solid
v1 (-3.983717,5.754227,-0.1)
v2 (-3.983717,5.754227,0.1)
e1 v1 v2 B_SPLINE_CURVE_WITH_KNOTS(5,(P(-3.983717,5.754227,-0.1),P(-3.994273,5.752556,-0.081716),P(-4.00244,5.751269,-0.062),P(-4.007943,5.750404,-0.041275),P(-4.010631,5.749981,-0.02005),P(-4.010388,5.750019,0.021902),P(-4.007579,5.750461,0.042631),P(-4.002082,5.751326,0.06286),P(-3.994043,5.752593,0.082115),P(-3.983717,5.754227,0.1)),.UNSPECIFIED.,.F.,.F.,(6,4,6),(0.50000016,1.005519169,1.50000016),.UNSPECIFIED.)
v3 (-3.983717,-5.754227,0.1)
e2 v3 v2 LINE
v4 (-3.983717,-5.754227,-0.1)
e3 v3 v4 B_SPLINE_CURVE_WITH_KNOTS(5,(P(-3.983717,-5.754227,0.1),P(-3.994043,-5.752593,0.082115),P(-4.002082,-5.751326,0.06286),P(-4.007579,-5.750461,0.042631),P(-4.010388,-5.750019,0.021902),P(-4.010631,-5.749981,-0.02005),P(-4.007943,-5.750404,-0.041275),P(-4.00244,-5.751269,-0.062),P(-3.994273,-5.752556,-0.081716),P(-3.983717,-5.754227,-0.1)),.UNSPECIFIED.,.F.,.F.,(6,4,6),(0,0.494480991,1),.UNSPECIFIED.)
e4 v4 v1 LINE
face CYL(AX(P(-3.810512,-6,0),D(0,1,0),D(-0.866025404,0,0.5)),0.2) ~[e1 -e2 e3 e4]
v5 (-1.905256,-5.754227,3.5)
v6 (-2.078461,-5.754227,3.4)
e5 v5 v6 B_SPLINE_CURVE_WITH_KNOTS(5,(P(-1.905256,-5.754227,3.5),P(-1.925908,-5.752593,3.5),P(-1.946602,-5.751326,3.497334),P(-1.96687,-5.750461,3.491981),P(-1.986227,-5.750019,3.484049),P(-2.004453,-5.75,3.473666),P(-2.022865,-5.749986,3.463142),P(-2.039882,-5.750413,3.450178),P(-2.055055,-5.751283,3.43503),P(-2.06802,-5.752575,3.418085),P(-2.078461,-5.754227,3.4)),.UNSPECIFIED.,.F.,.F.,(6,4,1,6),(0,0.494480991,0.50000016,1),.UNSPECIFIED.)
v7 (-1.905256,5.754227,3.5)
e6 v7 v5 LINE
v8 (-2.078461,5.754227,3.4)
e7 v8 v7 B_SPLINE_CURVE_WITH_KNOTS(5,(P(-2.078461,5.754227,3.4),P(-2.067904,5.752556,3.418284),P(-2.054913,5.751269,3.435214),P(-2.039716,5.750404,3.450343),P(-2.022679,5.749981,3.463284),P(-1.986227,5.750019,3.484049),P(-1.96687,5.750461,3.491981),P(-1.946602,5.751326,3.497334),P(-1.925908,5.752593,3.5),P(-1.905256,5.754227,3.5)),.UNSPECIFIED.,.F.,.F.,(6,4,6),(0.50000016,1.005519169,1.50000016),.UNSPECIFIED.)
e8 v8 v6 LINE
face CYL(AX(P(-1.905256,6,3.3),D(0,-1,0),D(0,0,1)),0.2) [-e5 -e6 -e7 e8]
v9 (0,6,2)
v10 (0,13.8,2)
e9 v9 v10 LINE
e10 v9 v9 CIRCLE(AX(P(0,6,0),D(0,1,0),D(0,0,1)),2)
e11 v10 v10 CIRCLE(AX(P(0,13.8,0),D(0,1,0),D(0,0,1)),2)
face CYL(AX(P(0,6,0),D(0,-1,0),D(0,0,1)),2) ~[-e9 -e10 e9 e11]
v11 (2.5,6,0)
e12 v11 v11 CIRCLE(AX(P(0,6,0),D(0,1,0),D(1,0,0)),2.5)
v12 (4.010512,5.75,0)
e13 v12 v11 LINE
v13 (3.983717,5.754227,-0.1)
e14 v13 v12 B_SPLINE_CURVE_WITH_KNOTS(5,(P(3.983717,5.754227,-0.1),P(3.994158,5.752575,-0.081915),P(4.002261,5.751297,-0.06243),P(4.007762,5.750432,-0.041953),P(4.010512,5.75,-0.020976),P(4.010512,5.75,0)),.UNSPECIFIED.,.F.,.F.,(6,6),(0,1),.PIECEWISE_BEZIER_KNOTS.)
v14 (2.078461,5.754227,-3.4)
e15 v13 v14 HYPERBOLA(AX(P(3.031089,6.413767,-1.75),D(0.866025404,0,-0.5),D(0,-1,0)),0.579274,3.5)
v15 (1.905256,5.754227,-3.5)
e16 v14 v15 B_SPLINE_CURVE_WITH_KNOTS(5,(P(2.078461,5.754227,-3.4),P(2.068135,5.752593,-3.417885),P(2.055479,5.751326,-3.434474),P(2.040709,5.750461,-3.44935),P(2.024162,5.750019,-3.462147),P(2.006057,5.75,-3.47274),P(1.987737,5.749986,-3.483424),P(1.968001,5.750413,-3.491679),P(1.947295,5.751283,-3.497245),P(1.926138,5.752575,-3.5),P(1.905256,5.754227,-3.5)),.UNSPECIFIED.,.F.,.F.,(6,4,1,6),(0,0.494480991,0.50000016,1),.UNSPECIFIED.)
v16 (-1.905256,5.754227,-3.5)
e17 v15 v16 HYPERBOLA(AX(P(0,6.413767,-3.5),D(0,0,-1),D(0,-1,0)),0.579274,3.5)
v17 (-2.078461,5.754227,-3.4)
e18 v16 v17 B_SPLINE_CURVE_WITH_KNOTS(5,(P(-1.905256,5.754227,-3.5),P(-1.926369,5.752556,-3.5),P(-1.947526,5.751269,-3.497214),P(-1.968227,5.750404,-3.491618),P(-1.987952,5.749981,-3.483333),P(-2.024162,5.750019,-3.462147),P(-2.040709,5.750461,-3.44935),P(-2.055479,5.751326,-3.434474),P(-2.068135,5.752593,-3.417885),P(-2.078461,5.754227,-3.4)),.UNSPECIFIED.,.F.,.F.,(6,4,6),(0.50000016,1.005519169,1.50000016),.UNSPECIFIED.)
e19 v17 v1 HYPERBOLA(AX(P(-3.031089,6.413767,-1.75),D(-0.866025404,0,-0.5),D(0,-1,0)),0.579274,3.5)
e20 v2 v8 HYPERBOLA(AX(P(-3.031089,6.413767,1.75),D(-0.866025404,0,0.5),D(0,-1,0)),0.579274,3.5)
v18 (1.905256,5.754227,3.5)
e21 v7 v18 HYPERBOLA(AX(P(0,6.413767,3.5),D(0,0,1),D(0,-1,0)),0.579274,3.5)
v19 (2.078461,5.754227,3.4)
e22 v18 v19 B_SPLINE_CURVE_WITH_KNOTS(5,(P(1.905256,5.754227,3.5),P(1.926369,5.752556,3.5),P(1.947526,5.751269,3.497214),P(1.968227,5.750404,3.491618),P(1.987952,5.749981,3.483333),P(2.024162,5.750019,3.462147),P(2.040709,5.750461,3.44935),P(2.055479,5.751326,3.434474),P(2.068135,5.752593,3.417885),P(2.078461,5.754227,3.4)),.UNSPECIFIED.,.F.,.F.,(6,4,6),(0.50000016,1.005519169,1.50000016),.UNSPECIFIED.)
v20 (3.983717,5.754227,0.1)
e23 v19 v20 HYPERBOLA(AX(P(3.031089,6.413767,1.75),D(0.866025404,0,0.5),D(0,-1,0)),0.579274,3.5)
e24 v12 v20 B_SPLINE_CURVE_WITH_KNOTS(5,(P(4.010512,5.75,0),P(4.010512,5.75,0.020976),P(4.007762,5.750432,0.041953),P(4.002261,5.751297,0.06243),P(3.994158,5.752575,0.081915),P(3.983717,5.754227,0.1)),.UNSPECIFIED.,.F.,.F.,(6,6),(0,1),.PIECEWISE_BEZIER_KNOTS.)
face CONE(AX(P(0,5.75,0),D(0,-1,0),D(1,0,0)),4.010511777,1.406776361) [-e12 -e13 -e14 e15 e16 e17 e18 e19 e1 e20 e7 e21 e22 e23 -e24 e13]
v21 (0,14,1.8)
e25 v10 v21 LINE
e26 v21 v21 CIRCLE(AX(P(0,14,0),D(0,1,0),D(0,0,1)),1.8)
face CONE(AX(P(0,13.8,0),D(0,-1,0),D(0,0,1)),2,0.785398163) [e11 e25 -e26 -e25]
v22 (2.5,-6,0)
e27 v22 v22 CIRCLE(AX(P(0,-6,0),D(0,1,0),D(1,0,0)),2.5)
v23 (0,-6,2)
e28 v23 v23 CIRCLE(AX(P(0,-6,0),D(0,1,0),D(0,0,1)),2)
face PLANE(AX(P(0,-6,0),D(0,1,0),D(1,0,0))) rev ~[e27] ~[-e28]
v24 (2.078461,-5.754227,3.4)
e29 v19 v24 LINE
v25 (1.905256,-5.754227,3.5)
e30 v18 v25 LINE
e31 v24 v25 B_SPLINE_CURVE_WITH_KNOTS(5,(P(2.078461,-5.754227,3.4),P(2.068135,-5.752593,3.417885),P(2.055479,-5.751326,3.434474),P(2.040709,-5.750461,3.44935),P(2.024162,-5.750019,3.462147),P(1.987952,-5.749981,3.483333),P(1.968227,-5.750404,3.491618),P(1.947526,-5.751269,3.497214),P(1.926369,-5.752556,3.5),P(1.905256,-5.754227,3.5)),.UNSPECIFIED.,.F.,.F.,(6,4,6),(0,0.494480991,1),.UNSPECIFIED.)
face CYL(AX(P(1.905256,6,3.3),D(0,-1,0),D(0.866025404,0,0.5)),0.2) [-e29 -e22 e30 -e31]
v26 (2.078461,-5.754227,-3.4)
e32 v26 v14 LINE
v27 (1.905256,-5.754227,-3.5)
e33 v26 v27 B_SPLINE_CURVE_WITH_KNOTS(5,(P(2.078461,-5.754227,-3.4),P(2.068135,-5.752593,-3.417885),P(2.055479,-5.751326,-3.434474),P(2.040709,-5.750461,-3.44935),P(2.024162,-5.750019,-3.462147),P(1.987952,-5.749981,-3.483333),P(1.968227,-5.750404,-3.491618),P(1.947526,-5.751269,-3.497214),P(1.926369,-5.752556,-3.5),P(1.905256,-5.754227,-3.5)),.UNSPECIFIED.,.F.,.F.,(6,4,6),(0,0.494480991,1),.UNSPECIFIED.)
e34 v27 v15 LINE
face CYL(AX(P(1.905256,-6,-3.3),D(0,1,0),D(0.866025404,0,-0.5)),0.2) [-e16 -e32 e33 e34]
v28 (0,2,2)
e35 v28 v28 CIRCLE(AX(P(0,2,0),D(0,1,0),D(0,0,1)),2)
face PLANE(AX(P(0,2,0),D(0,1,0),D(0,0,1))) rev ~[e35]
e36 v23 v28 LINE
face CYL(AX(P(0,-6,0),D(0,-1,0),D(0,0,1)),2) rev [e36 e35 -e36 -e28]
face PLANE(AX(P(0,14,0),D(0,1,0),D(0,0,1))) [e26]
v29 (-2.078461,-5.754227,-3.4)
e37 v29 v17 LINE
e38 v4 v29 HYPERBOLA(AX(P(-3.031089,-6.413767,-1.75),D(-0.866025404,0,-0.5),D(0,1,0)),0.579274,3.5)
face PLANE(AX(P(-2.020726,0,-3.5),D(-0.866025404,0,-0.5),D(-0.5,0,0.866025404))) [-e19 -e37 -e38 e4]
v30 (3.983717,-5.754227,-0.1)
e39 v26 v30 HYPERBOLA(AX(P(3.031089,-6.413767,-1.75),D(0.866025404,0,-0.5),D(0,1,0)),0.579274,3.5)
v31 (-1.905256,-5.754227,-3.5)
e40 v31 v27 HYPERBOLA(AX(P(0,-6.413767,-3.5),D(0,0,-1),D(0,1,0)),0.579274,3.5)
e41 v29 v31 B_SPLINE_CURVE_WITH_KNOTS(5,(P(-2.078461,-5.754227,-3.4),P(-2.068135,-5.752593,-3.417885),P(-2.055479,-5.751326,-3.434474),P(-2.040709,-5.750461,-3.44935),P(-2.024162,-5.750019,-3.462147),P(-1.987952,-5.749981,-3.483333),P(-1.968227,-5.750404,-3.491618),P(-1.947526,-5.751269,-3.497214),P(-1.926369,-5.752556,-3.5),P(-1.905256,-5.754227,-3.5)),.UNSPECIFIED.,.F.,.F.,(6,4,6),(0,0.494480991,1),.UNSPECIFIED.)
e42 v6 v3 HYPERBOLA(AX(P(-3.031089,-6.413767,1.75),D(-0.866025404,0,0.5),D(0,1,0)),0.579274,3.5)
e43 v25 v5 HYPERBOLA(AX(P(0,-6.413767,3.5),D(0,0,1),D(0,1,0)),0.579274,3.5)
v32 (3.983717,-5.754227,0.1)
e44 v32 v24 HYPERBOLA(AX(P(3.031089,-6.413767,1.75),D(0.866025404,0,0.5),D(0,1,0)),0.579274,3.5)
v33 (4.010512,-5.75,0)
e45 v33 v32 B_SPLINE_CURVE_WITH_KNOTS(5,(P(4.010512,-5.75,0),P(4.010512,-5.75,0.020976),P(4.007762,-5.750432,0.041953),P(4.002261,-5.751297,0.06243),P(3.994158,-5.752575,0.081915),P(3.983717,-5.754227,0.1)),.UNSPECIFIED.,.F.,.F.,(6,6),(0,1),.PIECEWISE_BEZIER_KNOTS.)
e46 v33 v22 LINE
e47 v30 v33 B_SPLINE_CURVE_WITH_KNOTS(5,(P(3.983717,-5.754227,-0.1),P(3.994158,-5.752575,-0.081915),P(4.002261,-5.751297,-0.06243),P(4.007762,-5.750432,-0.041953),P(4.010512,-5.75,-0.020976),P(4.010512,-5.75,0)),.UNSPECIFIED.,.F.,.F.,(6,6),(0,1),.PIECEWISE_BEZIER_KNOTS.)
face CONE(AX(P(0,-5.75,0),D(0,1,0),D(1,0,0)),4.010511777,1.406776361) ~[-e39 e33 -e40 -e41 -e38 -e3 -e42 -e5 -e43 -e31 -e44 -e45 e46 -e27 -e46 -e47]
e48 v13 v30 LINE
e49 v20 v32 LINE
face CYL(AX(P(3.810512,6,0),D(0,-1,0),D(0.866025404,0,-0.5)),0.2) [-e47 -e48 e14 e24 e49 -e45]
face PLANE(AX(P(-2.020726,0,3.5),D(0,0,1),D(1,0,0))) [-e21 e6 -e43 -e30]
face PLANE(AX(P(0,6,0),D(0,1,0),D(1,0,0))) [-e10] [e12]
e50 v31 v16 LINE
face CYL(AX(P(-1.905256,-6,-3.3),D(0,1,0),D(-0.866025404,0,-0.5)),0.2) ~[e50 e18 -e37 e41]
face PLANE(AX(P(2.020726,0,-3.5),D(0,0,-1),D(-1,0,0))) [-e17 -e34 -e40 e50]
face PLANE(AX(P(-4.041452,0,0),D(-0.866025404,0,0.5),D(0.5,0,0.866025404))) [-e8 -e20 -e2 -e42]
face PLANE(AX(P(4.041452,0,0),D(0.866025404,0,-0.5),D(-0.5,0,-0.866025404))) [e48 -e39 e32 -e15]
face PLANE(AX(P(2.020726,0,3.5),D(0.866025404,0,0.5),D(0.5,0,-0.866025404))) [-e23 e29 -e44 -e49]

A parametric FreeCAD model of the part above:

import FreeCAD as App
import Part
import Sketcher
Q = App.Units.Quantity


def edges_at(feature, points):
    """Names of the edges that pass closest to the given points."""
    edges = feature.Shape.Edges
    near = lambda p: min(range(len(edges)), key=lambda i: edges[i].distToShape(Part.Vertex(*p))[0])
    return sorted({f"Edge{near(p) + 1}" for p in points})


def add_polygon(sketch, points):
    """Adds a closed chain of lines whose ends are joined by coincident constraints."""
    first, n = sketch.GeometryCount, len(points)
    for a, b in zip(points, points[1:] + points[:1]):
        sketch.addGeometry(Part.LineSegment(App.Vector(*a, 0), App.Vector(*b, 0)), False)
    for i in range(n):
        sketch.addConstraint(Sketcher.Constraint("Coincident", first + i, 2, first + (i + 1) % n, 1))

doc = App.newDocument("Part")
params = doc.addObject("Spreadsheet::Sheet", "Params")
for row, (alias, value) in enumerate([
    ("pad1_length", "12 mm"),
    ("fillet_radius", "0.2 mm"),
    ("sketch2_diameter", "4 mm"),
    ("pocket1_length", "8 mm"),
    ("sketch3_height", "0.25 mm"),
    ("groove_angle", "360 deg"),
    ("sketch4_diameter", "4 mm"),
    ("pad2_length", "8 mm"),
    ("chamfer_size", "0.2 mm"),
], start=1):
    params.set(f"A{row}", alias)
    params.set(f"B{row}", "=" + value)
    params.setAlias(f"B{row}", alias)

body = doc.addObject("PartDesign::Body", "Body")

sketch1 = body.newObject("Sketcher::SketchObject", "Sketch")
sketch1.AttachmentSupport = (doc.getObject("XZ_Plane"), [""])
sketch1.MapMode = "FlatFace"
add_polygon(sketch1, [(4.041452, 0), (2.020726, -3.5), (-2.020726, -3.5), (-4.041452, 0), (-2.020726, 3.5), (2.020726, 3.5)])
sketch1.addConstraint([
    Sketcher.Constraint("Horizontal", 1),
    Sketcher.Constraint("Horizontal", 4),
    Sketcher.Constraint("Symmetric", 0, 2, 3, 2, -1, 1),
    Sketcher.Constraint("Symmetric", 2, 2, 5, 2, -1, 1),
    Sketcher.Constraint("PointOnObject", 2, 2, -1),
    Sketcher.Constraint("Parallel", 2, 5),
    Sketcher.Constraint("Vertical", 1, 2, 3, 2),
    Sketcher.Constraint("Angle", 0, Q("-120 deg")),
    Sketcher.Constraint("DistanceY", 1, 2, 3, 2, 7.0),
    Sketcher.Constraint("DistanceX", 1, 2, 1, 1, 4.041452),
])
pad1 = body.newObject("PartDesign::Pad", "Pad")
pad1.Profile = sketch1
pad1.setExpression("Length", "Params.pad1_length")
pad1.Midplane = True
doc.recompute()

fillet = body.newObject("PartDesign::Fillet", "Fillet")
fillet.Base = (pad1, edges_at(pad1, [
    (2.021, 0, 3.5),
    (-2.021, 0, 3.5),
    (-4.041, 0, 0),
    (-2.021, 0, -3.5),
    (2.021, 0, -3.5),
    (4.041, 0, 0),
]))
fillet.setExpression("Radius", "Params.fillet_radius")

sketch2 = body.newObject("Sketcher::SketchObject", "Sketch001")
sketch2.AttachmentSupport = (doc.getObject("XZ_Plane"), [""])
sketch2.MapMode = "FlatFace"
sketch2.AttachmentOffset = App.Placement(App.Vector(0, 0, 6), App.Rotation())
sketch2.addGeometry(Part.Circle(App.Vector(0, 0, 0), App.Vector(0, 0, 1), 2), False)
sketch2.addConstraint([
    Sketcher.Constraint("Coincident", 0, 3, -1, 1),
    Sketcher.Constraint("Diameter", 0, 4.0),
])
sketch2.setExpression("Constraints[1]", "Params.sketch2_diameter")
pocket1 = body.newObject("PartDesign::Pocket", "Pocket")
pocket1.Profile = sketch2
pocket1.setExpression("Length", "Params.pocket1_length")

sketch3 = body.newObject("Sketcher::SketchObject", "Sketch002")
sketch3.AttachmentSupport = (doc.getObject("XY_Plane"), [""])
sketch3.MapMode = "FlatFace"
add_polygon(sketch3, [(-4.010512, 6), (-4.010512, 5.75), (-2.5, 6)])
sketch3.addConstraint([
    Sketcher.Constraint("Vertical", 0),
    Sketcher.Constraint("Horizontal", 2),
    Sketcher.Constraint("DistanceY", -1, 1, 1, 2, 6.0),
    Sketcher.Constraint("DistanceY", 0, 2, 0, 1, 0.25),
    Sketcher.Constraint("DistanceX", 1, 2, -1, 1, 2.5),
    Sketcher.Constraint("DistanceX", 2, 2, 2, 1, 1.510512),
])
sketch3.setExpression("Constraints[6]", "Params.sketch3_height")
groove = body.newObject("PartDesign::Groove", "Groove")
groove.Profile = sketch3
groove.ReferenceAxis = (sketch3, ["V_Axis"])
groove.setExpression("Angle", "Params.groove_angle")
doc.recompute()

mirrored = body.newObject("PartDesign::Mirrored", "Mirrored")
mirrored.Originals = [groove]
mirrored.MirrorPlane = (doc.getObject("XZ_Plane"), [""])
body.Tip = mirrored

sketch4 = body.newObject("Sketcher::SketchObject", "Sketch003")
sketch4.AttachmentSupport = (doc.getObject("XZ_Plane"), [""])
sketch4.MapMode = "FlatFace"
sketch4.AttachmentOffset = App.Placement(App.Vector(0, 0, -6), App.Rotation())
sketch4.addGeometry(Part.Circle(App.Vector(0, 0, 0), App.Vector(0, 0, 1), 2), False)
sketch4.addConstraint([
    Sketcher.Constraint("Coincident", 0, 3, -1, 1),
    Sketcher.Constraint("Diameter", 0, 4.0),
])
sketch4.setExpression("Constraints[1]", "Params.sketch4_diameter")
pad2 = body.newObject("PartDesign::Pad", "Pad001")
pad2.Profile = sketch4
pad2.setExpression("Length", "Params.pad2_length")
pad2.Reversed = True
doc.recompute()

chamfer = body.newObject("PartDesign::Chamfer", "Chamfer")
chamfer.Base = (pad2, edges_at(pad2, [(0, 14, -2)]))
chamfer.setExpression("Size", "Params.chamfer_size")

doc.recompute()
